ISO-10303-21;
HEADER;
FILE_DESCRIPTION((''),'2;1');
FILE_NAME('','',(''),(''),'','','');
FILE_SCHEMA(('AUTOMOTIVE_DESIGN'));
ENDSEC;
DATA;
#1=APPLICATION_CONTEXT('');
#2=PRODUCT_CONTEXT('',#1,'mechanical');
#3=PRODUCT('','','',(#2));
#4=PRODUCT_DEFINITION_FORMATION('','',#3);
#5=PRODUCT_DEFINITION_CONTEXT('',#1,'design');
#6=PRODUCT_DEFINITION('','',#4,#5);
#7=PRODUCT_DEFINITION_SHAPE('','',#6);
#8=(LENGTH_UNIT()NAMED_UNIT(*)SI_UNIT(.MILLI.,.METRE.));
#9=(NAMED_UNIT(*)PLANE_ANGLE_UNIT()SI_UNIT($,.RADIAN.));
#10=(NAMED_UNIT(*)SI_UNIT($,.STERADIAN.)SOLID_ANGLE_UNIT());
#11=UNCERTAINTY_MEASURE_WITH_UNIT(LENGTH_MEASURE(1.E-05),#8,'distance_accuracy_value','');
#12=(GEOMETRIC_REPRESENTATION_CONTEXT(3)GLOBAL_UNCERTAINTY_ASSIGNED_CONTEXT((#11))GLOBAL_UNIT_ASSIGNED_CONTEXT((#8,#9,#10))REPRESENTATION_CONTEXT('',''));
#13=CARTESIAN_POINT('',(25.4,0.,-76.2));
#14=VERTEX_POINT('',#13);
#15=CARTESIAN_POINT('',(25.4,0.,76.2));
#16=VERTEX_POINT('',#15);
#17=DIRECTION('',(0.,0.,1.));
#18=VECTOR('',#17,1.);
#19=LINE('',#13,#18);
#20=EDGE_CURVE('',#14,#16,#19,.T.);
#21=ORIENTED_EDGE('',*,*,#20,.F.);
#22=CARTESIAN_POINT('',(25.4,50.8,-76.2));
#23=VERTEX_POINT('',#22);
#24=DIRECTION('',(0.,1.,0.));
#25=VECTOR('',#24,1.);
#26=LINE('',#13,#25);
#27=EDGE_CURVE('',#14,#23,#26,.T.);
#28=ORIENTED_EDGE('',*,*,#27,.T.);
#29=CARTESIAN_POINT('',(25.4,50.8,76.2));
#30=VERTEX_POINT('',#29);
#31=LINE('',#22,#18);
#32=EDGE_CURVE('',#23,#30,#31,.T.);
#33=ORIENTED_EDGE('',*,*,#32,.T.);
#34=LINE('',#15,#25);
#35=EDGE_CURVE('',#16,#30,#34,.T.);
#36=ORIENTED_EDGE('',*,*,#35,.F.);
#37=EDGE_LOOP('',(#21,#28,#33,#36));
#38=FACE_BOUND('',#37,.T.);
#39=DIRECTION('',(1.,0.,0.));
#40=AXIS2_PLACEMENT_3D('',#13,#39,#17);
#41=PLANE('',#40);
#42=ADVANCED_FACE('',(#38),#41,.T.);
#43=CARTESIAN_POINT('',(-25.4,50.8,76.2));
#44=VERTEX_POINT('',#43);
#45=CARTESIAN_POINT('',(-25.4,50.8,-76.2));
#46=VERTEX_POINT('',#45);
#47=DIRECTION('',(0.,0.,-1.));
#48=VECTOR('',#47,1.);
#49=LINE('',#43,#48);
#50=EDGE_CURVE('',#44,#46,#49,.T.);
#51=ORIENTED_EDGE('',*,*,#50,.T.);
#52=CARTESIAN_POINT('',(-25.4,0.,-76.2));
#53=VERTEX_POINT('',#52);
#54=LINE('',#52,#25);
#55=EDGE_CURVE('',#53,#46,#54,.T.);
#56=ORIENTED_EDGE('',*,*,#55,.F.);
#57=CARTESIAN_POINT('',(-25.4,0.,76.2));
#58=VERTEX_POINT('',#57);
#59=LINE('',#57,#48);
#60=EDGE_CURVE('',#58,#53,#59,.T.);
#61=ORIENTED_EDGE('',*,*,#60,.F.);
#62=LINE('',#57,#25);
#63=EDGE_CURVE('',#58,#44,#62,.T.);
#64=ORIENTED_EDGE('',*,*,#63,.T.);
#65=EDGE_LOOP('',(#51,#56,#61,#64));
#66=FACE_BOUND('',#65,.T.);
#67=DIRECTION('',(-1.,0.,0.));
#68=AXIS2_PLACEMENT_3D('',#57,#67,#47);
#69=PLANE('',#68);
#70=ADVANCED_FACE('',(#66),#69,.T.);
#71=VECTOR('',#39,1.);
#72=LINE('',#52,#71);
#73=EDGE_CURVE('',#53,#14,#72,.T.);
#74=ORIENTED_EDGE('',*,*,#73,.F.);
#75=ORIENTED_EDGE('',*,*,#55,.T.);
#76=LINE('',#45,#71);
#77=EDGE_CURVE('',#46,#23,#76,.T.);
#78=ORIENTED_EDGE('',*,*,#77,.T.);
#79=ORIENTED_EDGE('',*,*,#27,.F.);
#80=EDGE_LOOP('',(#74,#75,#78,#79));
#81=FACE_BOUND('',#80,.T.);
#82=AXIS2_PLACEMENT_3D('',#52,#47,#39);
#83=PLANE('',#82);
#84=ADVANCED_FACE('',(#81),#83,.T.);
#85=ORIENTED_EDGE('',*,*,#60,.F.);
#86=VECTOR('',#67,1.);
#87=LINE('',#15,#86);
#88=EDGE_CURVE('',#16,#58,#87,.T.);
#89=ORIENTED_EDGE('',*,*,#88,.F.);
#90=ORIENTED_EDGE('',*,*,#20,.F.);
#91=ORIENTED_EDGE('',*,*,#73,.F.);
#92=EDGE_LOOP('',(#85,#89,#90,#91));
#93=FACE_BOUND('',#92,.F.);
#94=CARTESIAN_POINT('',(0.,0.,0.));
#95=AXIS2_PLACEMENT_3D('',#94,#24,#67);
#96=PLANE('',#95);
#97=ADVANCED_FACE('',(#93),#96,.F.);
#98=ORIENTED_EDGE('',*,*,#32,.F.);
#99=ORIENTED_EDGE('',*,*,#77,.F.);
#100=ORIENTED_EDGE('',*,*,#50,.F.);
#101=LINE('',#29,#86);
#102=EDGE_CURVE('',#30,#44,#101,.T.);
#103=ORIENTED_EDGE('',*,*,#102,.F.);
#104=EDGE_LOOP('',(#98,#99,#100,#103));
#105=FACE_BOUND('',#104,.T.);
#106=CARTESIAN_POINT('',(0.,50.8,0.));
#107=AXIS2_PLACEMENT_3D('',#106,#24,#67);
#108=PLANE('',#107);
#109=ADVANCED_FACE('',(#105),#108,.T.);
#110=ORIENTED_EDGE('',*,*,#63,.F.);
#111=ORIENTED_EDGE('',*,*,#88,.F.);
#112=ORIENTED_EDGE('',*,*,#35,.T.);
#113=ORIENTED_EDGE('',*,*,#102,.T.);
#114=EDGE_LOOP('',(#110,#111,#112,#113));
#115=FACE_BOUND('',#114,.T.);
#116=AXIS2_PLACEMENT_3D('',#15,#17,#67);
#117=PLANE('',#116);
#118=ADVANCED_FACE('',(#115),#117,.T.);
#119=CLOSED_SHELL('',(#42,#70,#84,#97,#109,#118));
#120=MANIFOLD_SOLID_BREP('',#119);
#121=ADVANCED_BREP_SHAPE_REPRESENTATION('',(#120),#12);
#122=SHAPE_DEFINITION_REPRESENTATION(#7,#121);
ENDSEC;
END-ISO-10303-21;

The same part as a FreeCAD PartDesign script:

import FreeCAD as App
import Part
import Sketcher

V = App.Vector
Q = App.Units.Quantity


def add_polygon(sketch, points):
    """Adds a closed chain of lines whose ends are joined by coincident constraints."""
    first, n = sketch.GeometryCount, len(points)
    for a, b in zip(points, points[1:] + points[:1]):
        sketch.addGeometry(Part.LineSegment(App.Vector(*a, 0), App.Vector(*b, 0)), False)
    for i in range(n):
        sketch.addConstraint(Sketcher.Constraint("Coincident", first + i, 2, first + (i + 1) % n, 1))

doc = App.newDocument("Part")
body = doc.addObject("PartDesign::Body", "Body")

sketch1 = body.newObject("Sketcher::SketchObject", "Sketch")
sketch1.AttachmentSupport = (doc.getObject("XZ_Plane"), [""])
sketch1.MapMode = "FlatFace"
add_polygon(sketch1, [(-25, 76), (25, 76), (25, -76), (-25, -76)])
sketch1.addConstraint(Sketcher.Constraint("Horizontal", 0))
sketch1.addConstraint(Sketcher.Constraint("Vertical", 1))
sketch1.addConstraint(Sketcher.Constraint("Horizontal", 2))
sketch1.addConstraint(Sketcher.Constraint("Vertical", 3))
sketch1.addConstraint(Sketcher.Constraint("Symmetric", 0, 2, 2, 2, -1, 1))
sketch1.addConstraint(Sketcher.Constraint("DistanceX", 0, 1, 0, 2, Q("2 in")))
sketch1.addConstraint(Sketcher.Constraint("DistanceY", 1, 2, 1, 1, Q("6 in")))
pad1 = body.newObject("PartDesign::Pad", "Pad")
pad1.Profile = sketch1
pad1.Length = Q("2 in")
pad1.Reversed = True

doc.recompute()
